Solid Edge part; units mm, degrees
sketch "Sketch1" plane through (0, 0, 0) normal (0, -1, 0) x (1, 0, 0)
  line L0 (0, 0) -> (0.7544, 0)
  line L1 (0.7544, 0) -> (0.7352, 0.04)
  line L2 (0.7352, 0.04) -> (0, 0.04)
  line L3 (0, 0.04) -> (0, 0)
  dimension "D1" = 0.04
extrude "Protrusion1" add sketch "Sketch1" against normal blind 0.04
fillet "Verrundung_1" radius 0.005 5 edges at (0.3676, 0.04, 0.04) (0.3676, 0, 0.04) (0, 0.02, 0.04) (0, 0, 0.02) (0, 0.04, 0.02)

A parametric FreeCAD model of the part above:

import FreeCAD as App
import Part
import Sketcher
Q = App.Units.Quantity


def edges_at(feature, points):
    """Names of the edges that pass closest to the given points."""
    edges = feature.Shape.Edges
    near = lambda p: min(range(len(edges)), key=lambda i: edges[i].distToShape(Part.Vertex(*p))[0])
    return sorted({f"Edge{near(p) + 1}" for p in points})


def add_polygon(sketch, points):
    """Adds a closed chain of lines whose ends are joined by coincident constraints."""
    first, n = sketch.GeometryCount, len(points)
    for a, b in zip(points, points[1:] + points[:1]):
        sketch.addGeometry(Part.LineSegment(App.Vector(*a, 0), App.Vector(*b, 0)), False)
    for i in range(n):
        sketch.addConstraint(Sketcher.Constraint("Coincident", first + i, 2, first + (i + 1) % n, 1))

doc = App.newDocument("Part")
body = doc.addObject("PartDesign::Body", "Body")

sketch1 = body.newObject("Sketcher::SketchObject", "Sketch")
sketch1.AttachmentSupport = (doc.getObject("XZ_Plane"), [""])
sketch1.MapMode = "FlatFace"
add_polygon(sketch1, [(0, 0.04), (0, 0), (0.7544, 0), (0.7352, 0.04)])
sketch1.addConstraint([
    Sketcher.Constraint("Vertical", 0),
    Sketcher.Constraint("Horizontal", 1),
    Sketcher.Constraint("Horizontal", 3),
    Sketcher.Constraint("Coincident", 0, 2, -1, 1),
    Sketcher.Constraint("DistanceY", 0, 2, 0, 1, Q("0.04 mm")),
    Sketcher.Constraint("Angle", 2, Q("115.641 deg")),
    Sketcher.Constraint("DistanceX", 1, 1, 1, 2, Q("0.7544 mm")),
])
pad1 = body.newObject("PartDesign::Pad", "Pad")
pad1.Profile = sketch1
pad1.Length = 0.04
pad1.Reversed = True
doc.recompute()

fillet = body.newObject("PartDesign::Fillet", "Fillet")
fillet.Base = (pad1, edges_at(pad1, [
    (0.368, 0.04, 0.04),
    (0.368, 0, 0.04),
    (0, 0.02, 0.04),
    (0, 0, 0.02),
    (0, 0.04, 0.02),
]))
fillet.Radius = 0.005

doc.recompute()
